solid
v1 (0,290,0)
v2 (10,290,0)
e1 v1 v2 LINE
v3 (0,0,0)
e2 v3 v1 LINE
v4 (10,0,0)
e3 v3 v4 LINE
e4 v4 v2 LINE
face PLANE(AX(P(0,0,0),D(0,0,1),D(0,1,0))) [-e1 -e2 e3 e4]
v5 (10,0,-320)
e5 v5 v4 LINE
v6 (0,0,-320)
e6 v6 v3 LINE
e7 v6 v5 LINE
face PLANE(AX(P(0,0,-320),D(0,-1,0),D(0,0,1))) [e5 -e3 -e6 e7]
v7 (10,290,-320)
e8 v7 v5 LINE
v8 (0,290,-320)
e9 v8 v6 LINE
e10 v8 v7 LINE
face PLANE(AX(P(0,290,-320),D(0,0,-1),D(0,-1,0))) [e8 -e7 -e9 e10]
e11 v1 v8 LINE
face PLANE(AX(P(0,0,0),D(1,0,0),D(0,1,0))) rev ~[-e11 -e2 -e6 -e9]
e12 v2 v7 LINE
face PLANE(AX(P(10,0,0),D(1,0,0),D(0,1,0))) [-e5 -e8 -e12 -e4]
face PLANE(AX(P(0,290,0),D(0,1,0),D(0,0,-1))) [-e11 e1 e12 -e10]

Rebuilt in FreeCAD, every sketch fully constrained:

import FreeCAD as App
import Part
import Sketcher
from FreeCAD import Vector


def add_polygon(sketch, points):
    """Adds a closed chain of lines whose ends are joined by coincident constraints."""
    first, n = sketch.GeometryCount, len(points)
    for a, b in zip(points, points[1:] + points[:1]):
        sketch.addGeometry(Part.LineSegment(App.Vector(*a, 0), App.Vector(*b, 0)), False)
    for i in range(n):
        sketch.addConstraint(Sketcher.Constraint("Coincident", first + i, 2, first + (i + 1) % n, 1))

doc = App.newDocument("Part")
body = doc.addObject("PartDesign::Body", "Body")

# Sketch on YZ plane
sketch1 = body.newObject("Sketcher::SketchObject", "Sketch")
sketch1.AttachmentSupport = (doc.getObject("YZ_Plane"), [""])
sketch1.MapMode = "FlatFace"
add_polygon(sketch1, [(290, 0), (0, 0), (0, -320), (290, -320)])  # lines 0-3
sketch1.addConstraint([
    Sketcher.Constraint("Horizontal", 0),
    Sketcher.Constraint("Vertical", 1),
    Sketcher.Constraint("Horizontal", 2),
    Sketcher.Constraint("Vertical", 3),
    Sketcher.Constraint("Coincident", 0, 2, -1, 1),
    Sketcher.Constraint("DistanceX", 0, 2, 0, 1, 290.0),
    Sketcher.Constraint("DistanceY", 1, 2, 1, 1, 320.0),
])
pad1 = body.newObject("PartDesign::Pad", "Pad")
pad1.Profile = sketch1
pad1.Length = 10

doc.recompute()
